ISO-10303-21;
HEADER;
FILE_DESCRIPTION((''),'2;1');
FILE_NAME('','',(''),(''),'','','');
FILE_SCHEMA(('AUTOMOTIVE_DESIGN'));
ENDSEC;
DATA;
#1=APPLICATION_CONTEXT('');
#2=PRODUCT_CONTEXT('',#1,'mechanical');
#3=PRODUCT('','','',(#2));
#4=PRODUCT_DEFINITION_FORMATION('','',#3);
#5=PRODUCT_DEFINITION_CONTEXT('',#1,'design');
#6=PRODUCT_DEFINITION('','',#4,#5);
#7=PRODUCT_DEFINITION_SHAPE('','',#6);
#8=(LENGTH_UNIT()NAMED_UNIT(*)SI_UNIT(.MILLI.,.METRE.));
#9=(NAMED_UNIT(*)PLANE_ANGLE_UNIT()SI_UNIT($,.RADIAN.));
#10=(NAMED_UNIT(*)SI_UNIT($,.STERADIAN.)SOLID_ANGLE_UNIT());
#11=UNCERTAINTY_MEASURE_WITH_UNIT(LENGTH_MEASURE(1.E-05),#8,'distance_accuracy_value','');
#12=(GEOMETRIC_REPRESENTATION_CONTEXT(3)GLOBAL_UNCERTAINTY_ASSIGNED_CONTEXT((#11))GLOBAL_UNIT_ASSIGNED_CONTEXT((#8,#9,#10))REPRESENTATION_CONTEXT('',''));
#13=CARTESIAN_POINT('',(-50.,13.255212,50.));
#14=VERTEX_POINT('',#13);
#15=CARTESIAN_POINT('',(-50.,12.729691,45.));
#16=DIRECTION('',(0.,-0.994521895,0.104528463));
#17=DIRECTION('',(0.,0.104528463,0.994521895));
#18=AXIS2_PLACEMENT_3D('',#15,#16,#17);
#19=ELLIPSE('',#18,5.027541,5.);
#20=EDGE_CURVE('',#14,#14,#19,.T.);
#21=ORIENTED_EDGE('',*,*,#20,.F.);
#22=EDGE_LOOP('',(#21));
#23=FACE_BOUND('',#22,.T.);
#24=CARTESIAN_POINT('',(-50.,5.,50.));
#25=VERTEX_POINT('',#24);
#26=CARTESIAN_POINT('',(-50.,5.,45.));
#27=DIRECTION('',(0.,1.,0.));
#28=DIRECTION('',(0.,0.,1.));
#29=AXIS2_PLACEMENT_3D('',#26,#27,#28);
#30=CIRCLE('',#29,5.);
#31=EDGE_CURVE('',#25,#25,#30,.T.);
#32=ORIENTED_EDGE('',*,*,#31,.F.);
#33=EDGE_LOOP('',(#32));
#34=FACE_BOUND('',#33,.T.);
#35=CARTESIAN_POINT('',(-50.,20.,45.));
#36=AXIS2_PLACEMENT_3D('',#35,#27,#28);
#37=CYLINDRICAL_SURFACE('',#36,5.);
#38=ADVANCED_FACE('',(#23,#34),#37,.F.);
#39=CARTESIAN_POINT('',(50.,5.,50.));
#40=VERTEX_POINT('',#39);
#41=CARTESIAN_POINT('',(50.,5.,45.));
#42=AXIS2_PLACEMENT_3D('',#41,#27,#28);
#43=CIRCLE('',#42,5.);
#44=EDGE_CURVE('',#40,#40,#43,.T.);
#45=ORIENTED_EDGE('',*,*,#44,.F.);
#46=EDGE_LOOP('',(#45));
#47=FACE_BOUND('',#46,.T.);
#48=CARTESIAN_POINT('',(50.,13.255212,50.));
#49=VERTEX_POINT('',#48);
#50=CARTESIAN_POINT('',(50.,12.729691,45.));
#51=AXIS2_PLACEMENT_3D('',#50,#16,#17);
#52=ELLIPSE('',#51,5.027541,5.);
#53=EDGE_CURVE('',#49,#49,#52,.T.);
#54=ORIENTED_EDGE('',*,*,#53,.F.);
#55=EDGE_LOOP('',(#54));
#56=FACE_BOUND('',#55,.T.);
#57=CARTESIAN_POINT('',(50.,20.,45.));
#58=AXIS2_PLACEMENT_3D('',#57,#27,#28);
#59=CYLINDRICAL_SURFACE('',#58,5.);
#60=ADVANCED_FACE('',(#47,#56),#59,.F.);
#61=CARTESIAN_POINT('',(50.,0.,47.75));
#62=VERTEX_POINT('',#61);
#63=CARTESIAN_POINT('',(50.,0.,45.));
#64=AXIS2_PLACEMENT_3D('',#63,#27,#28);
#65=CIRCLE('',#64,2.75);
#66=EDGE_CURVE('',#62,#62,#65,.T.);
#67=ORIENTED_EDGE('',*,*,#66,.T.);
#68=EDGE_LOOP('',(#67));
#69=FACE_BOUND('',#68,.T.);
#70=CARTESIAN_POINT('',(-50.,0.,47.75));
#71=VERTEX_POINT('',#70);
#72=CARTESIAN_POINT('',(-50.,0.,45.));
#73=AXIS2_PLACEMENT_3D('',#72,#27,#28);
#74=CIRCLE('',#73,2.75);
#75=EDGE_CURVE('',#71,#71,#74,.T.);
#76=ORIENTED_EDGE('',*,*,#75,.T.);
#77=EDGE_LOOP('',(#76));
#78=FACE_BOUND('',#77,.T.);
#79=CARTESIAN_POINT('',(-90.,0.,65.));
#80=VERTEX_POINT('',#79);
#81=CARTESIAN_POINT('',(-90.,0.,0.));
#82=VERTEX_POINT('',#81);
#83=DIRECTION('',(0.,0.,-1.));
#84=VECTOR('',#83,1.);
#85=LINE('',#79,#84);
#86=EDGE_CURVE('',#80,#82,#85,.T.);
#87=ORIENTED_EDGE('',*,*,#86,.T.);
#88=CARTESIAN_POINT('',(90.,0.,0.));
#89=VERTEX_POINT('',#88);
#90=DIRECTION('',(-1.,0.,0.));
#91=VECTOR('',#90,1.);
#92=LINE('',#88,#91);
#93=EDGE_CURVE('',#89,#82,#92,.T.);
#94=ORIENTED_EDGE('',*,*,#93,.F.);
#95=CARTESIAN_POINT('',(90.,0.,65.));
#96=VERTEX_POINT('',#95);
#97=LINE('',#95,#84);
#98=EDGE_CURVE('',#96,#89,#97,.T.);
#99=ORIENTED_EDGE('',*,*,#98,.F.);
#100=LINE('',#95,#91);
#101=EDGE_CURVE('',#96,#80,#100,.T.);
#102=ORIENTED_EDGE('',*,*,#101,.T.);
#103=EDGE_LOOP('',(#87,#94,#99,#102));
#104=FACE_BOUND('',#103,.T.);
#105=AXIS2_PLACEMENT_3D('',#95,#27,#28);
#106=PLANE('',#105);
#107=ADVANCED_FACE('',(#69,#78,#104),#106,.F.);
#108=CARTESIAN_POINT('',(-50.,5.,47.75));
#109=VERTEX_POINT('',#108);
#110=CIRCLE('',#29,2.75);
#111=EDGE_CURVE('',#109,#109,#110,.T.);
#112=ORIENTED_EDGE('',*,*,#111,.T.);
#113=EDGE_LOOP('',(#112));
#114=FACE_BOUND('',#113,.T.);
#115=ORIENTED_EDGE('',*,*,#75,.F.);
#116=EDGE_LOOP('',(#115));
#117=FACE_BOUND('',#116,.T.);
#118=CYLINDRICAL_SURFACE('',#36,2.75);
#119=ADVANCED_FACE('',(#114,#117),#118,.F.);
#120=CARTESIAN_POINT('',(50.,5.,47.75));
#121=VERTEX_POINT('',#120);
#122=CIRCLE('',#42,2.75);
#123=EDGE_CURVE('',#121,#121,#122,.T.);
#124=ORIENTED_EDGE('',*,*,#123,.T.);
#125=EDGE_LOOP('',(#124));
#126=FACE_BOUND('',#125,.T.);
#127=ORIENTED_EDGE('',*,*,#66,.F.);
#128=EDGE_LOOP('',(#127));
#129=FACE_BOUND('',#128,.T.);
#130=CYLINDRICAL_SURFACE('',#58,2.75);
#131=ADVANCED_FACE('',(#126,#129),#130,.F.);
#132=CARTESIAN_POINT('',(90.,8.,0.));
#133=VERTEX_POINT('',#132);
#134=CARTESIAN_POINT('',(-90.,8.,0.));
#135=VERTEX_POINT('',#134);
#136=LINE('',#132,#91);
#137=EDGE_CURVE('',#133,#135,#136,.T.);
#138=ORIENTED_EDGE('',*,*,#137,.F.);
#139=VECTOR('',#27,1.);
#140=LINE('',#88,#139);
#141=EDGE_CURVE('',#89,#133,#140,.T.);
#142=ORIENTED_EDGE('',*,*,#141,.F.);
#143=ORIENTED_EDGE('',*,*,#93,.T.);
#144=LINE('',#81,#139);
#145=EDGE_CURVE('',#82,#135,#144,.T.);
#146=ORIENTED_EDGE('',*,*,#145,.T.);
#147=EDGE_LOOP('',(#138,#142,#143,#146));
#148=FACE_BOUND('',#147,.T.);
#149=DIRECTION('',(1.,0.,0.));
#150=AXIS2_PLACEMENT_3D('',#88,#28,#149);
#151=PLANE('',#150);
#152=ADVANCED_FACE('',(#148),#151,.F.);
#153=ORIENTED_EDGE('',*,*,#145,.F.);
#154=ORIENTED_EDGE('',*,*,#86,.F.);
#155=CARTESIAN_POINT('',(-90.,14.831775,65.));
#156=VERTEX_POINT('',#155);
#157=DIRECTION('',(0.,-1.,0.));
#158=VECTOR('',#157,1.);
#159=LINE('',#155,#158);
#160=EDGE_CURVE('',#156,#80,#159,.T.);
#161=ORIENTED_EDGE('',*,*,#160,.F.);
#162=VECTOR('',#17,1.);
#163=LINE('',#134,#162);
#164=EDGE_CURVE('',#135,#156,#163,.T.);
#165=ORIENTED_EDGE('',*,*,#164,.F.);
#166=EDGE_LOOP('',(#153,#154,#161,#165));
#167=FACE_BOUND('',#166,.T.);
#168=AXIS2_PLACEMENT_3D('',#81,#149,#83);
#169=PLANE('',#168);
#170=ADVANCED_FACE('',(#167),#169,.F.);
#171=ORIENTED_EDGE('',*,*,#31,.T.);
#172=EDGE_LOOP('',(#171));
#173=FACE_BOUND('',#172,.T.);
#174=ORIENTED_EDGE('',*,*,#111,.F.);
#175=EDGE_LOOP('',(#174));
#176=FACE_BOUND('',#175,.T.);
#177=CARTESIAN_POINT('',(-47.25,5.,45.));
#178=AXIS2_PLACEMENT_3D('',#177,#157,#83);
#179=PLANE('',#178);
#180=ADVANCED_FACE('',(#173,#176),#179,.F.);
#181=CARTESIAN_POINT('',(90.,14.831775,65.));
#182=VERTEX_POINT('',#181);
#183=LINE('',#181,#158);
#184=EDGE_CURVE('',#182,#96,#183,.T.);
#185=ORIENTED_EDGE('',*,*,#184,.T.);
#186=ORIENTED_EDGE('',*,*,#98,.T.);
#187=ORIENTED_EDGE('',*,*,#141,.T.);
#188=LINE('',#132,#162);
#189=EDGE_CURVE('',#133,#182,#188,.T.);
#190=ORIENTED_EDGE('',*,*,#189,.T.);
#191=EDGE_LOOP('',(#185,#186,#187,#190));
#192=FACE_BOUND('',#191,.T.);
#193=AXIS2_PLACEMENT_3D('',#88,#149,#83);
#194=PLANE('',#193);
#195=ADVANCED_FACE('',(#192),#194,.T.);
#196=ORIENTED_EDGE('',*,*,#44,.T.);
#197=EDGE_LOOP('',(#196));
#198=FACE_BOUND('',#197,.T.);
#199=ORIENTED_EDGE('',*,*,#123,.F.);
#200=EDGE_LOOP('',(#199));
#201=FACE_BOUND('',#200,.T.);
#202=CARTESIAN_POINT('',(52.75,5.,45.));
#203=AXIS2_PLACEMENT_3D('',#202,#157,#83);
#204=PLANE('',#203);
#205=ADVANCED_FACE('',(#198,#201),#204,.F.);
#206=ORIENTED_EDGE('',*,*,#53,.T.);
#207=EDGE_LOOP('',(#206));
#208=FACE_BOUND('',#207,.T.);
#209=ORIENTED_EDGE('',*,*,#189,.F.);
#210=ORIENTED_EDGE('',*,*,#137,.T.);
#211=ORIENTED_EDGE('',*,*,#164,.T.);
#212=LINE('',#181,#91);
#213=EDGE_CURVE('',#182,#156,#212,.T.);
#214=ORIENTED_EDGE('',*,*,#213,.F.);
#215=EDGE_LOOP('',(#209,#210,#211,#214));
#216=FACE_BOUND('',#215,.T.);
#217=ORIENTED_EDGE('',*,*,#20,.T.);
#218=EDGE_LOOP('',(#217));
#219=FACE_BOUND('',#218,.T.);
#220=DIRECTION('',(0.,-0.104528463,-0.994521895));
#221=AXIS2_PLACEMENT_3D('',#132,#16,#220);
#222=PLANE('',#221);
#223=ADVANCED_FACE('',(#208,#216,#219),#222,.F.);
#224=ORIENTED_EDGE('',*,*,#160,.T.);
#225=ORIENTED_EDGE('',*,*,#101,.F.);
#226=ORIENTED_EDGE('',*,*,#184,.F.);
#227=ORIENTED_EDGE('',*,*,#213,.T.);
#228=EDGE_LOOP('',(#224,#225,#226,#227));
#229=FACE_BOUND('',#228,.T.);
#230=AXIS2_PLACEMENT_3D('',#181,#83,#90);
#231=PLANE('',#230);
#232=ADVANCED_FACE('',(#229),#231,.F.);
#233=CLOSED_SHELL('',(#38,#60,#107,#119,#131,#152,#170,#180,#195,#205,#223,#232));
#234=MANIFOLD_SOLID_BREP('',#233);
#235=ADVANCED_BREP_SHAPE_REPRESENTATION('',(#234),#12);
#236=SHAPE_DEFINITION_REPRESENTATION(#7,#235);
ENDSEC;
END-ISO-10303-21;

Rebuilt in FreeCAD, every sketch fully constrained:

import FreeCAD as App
import Part
import Sketcher
Q = App.Units.Quantity


def add_polygon(sketch, points):
    """Adds a closed chain of lines whose ends are joined by coincident constraints."""
    first, n = sketch.GeometryCount, len(points)
    for a, b in zip(points, points[1:] + points[:1]):
        sketch.addGeometry(Part.LineSegment(App.Vector(*a, 0), App.Vector(*b, 0)), False)
    for i in range(n):
        sketch.addConstraint(Sketcher.Constraint("Coincident", first + i, 2, first + (i + 1) % n, 1))

doc = App.newDocument("Part")
body = doc.addObject("PartDesign::Body", "Body")

# Sketch on YZ plane
sketch1 = body.newObject("Sketcher::SketchObject", "Sketch")
sketch1.AttachmentSupport = (doc.getObject("YZ_Plane"), [""])
sketch1.MapMode = "FlatFace"
add_polygon(sketch1, [(0, 0), (8, 0), (15, 65), (0, 65)])  # lines 0-3
sketch1.addConstraint([
    Sketcher.Constraint("Horizontal", 0),
    Sketcher.Constraint("Horizontal", 2),
    Sketcher.Constraint("Vertical", 3),
    Sketcher.Constraint("Coincident", 3, 2, -1, 1),
    Sketcher.Constraint("DistanceX", 0, 1, 0, 2, Q("8 mm")),
    Sketcher.Constraint("DistanceY", 3, 2, 3, 1, Q("65 mm")),
    Sketcher.Constraint("Angle", 1, Q("84 deg")),
])
pad1 = body.newObject("PartDesign::Pad", "Pad")
pad1.Profile = sketch1
pad1.Length = 180
pad1.Midplane = True

# Sketch on XZ plane
sketch2 = body.newObject("Sketcher::SketchObject", "Sketch001")
sketch2.AttachmentSupport = (doc.getObject("XZ_Plane"), [""])
sketch2.MapMode = "FlatFace"
sketch2.AttachmentOffset = App.Placement(App.Vector(0, 0, -20), App.Rotation())
sketch2.addGeometry([
    Part.Circle(App.Vector(-50, 45, 0), App.Vector(0, 0, 1), 2.8),
    Part.Circle(App.Vector(50, 45, 0), App.Vector(0, 0, 1), 2.8),
], False)
sketch2.addConstraint([
    Sketcher.Constraint("Equal", 0, 1),
    Sketcher.Constraint("Symmetric", 0, 3, 1, 3, -2),
    Sketcher.Constraint("Diameter", 0, Q("5.5 mm")),
    Sketcher.Constraint("DistanceX", 0, 3, -1, 1, Q("50 mm")),
    Sketcher.Constraint("DistanceY", -1, 1, 0, 3, Q("45 mm")),
])
doc.recompute()
hole = body.newObject("PartDesign::Hole", "Hole")
hole.Profile = sketch2
hole.ThreadType = "None"
hole.Diameter = 5.5
hole.DepthType = "ThroughAll"
hole.HoleCutType = "Counterbore"
hole.HoleCutDiameter = 10
hole.HoleCutDepth = 15
hole.Reversed = True

doc.recompute()
